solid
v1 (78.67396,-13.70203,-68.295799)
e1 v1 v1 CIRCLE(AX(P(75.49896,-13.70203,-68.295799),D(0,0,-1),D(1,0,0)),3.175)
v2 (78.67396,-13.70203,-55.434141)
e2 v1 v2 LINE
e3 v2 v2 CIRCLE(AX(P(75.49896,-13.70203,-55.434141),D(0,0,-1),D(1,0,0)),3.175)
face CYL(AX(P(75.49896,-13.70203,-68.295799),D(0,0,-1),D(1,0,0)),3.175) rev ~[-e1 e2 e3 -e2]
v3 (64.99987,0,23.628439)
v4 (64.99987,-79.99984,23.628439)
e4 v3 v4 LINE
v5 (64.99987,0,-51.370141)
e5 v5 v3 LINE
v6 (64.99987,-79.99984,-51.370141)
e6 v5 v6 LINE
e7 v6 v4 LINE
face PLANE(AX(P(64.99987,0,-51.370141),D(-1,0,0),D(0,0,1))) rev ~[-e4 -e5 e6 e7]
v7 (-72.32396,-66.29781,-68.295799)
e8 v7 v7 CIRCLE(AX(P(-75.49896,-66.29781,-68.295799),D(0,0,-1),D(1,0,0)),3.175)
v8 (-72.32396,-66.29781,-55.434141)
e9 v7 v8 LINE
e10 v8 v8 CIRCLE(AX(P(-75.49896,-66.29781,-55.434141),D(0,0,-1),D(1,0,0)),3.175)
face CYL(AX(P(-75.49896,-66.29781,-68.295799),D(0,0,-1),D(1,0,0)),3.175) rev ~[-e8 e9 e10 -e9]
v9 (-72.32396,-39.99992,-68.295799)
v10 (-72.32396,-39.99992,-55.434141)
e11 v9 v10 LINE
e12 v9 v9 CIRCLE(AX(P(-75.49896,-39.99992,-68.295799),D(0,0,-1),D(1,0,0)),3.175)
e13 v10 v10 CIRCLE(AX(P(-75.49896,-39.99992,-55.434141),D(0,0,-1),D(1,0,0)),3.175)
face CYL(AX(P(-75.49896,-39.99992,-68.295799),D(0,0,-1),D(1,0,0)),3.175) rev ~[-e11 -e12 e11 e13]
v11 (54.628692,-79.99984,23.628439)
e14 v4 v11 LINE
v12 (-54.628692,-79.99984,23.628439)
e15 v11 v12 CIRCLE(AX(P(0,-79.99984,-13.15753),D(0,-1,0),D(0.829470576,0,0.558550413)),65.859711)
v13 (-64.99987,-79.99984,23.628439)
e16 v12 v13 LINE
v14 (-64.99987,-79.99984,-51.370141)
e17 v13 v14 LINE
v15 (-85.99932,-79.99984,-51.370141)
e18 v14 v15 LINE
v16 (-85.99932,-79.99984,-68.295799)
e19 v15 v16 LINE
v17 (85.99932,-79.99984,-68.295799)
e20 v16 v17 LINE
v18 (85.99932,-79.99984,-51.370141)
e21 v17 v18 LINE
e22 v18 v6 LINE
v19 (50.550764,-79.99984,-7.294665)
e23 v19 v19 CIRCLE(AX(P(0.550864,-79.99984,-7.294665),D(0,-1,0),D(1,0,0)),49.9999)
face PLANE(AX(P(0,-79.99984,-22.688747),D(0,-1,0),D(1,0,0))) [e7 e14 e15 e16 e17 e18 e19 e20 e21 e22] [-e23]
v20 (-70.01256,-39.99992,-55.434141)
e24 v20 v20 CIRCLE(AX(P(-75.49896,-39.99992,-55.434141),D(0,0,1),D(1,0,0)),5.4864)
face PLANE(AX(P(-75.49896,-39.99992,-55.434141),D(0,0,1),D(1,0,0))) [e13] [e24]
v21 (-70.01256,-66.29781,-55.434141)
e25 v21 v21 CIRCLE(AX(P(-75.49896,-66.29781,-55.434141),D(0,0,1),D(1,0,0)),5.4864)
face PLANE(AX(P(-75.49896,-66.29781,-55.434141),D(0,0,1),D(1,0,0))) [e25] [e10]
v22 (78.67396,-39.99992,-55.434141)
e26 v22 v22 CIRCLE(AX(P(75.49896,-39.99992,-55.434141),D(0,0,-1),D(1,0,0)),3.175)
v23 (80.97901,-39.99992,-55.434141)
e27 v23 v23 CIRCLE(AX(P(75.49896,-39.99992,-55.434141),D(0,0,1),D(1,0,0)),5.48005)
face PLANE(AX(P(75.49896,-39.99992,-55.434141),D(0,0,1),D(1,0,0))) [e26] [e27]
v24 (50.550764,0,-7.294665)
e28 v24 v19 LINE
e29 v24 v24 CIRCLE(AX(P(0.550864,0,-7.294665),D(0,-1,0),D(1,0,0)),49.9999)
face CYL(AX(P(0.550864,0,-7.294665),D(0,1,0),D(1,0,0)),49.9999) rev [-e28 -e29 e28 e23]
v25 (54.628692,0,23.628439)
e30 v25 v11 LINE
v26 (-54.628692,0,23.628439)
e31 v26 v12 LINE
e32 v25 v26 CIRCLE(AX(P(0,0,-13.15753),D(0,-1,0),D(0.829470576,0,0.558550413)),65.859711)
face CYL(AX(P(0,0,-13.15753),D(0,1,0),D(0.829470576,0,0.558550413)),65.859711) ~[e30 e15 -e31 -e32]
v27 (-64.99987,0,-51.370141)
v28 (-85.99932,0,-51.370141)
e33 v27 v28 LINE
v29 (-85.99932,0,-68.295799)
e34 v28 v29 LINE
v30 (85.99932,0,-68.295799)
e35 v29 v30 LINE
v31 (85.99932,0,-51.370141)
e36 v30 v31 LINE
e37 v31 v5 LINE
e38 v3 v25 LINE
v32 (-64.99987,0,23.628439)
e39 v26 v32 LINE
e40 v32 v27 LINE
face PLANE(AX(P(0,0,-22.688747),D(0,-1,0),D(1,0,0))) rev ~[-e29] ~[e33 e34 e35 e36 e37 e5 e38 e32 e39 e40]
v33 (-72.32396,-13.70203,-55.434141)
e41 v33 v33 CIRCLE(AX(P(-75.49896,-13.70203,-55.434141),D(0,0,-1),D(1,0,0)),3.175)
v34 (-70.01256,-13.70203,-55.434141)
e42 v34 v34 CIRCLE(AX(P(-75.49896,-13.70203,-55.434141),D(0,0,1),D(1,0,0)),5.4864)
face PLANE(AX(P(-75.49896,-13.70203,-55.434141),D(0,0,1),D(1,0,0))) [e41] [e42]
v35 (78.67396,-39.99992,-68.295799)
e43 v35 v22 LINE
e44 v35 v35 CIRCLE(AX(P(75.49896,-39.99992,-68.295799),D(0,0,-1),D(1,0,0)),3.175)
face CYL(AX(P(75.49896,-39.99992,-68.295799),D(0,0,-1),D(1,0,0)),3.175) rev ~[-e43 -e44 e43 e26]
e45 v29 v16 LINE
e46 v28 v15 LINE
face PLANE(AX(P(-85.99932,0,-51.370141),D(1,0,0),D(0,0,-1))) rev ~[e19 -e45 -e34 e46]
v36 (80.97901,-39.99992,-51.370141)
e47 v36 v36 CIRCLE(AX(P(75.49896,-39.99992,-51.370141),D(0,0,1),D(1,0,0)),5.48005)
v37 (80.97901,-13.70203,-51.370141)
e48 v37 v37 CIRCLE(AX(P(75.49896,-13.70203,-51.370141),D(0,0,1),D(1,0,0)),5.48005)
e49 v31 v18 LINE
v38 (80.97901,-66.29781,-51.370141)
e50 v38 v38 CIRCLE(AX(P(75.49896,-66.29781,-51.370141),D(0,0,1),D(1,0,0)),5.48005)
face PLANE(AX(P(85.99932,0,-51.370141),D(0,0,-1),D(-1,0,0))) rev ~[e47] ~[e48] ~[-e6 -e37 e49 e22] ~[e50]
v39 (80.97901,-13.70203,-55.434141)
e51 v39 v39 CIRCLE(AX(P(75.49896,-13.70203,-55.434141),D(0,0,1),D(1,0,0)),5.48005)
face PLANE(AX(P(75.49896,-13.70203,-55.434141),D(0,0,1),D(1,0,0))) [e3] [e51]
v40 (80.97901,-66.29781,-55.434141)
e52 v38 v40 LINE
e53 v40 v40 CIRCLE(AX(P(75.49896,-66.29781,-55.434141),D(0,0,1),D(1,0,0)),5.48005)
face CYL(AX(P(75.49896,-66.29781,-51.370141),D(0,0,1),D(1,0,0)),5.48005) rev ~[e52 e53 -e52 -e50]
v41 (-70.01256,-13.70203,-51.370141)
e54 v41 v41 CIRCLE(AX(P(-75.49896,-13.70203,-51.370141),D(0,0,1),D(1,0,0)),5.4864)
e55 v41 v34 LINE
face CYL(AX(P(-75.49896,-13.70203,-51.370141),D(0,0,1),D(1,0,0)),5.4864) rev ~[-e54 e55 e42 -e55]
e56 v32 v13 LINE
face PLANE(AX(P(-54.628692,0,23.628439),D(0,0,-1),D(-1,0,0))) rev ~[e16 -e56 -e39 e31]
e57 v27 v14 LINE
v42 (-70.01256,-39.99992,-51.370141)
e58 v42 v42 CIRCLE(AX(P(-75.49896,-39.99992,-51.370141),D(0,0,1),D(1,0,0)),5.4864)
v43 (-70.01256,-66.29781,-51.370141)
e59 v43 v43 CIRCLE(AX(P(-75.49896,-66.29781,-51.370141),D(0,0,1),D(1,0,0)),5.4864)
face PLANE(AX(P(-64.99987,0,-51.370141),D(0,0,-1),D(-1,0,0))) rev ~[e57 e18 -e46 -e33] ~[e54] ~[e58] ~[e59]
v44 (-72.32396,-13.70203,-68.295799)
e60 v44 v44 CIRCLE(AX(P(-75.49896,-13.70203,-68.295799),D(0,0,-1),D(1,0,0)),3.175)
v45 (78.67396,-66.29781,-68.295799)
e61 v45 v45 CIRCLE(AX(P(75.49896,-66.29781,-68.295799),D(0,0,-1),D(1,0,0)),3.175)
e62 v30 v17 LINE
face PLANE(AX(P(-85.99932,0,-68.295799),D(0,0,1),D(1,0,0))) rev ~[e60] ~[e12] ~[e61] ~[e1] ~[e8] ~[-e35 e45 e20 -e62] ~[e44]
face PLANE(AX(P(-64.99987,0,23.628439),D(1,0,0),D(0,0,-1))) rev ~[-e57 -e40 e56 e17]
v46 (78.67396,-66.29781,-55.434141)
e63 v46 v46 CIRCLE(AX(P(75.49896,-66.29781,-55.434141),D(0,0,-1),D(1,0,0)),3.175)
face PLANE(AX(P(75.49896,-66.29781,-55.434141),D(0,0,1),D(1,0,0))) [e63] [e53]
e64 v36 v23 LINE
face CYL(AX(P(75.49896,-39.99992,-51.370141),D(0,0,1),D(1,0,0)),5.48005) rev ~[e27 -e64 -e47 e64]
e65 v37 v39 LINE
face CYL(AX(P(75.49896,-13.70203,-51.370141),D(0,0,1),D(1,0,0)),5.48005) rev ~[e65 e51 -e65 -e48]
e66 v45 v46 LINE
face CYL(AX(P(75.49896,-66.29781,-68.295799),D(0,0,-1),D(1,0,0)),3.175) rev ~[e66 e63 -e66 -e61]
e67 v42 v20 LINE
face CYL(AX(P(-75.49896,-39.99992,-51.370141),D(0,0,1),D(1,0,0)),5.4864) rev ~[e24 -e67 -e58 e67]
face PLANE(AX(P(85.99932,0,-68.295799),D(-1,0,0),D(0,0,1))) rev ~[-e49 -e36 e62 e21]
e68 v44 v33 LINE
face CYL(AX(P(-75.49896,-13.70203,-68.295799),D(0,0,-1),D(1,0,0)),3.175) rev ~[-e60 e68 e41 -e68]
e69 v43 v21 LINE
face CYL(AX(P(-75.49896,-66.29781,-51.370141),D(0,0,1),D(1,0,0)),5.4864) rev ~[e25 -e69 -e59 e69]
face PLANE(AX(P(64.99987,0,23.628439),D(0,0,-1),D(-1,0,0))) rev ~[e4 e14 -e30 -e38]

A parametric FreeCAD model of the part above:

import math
import FreeCAD as App
import Part
import Sketcher

V = App.Vector
Q = App.Units.Quantity

doc = App.newDocument("Part")
params = doc.addObject("Spreadsheet::Sheet", "Params")
for row, (alias, value) in enumerate([
    ("sketch1_diameter", "3.937 in"),
    ("pad1_length", "3.1496 in"),
    ("sketch2_diameter", "0.25 in"),
    ("sketch3_diameter", "0.25 in"),
    ("pocket3_length", "0.16 in"),
    ("sketch5_diameter", "0.432 in"),
    ("pocket4_length", "0.16 in"),
], start=1):
    params.set(f"A{row}", alias)
    params.set(f"B{row}", "=" + value)
    params.setAlias(f"B{row}", alias)

body = doc.addObject("PartDesign::Body", "Body")

sketch1 = body.newObject("Sketcher::SketchObject", "Sketch")
sketch1.AttachmentSupport = (doc.getObject("XZ_Plane"), [""])
sketch1.MapMode = "FlatFace"
sketch1.addGeometry([
    Part.LineSegment(V(-85.99932, -68.295799, 0), V(85.99932, -68.295799, 0)),
    Part.LineSegment(V(85.99932, -68.295799, 0), V(85.99932, -51.370141, 0)),
    Part.LineSegment(V(85.99932, -51.370141, 0), V(64.99987, -51.370141, 0)),
    Part.LineSegment(V(64.99987, -51.370141, 0), V(64.99987, 23.628439, 0)),
    Part.LineSegment(V(64.99987, 23.628439, 0), V(54.628692, 23.628439, 0)),
    Part.ArcOfCircle(Part.Circle(V(0, -13.15753, 0), V(0, 0, 1), 65.859711), math.radians(33.955608), math.radians(146.044392)),
    Part.LineSegment(V(-54.628692, 23.628439, 0), V(-64.99987, 23.628439, 0)),
    Part.LineSegment(V(-64.99987, 23.628439, 0), V(-64.99987, -51.370141, 0)),
    Part.LineSegment(V(-64.99987, -51.370141, 0), V(-85.99932, -51.370141, 0)),
    Part.LineSegment(V(-85.99932, -51.370141, 0), V(-85.99932, -68.295799, 0)),
    Part.Circle(V(0.550864, -7.294665, 0), V(0, 0, 1), 49.9999),
], False)
sketch1.addConstraint([
    Sketcher.Constraint("Coincident", 0, 2, 1, 1),
    Sketcher.Constraint("Coincident", 1, 2, 2, 1),
    Sketcher.Constraint("Coincident", 2, 2, 3, 1),
    Sketcher.Constraint("Coincident", 3, 2, 4, 1),
    Sketcher.Constraint("Coincident", 4, 2, 5, 1),
    Sketcher.Constraint("Coincident", 5, 2, 6, 1),
    Sketcher.Constraint("Coincident", 6, 2, 7, 1),
    Sketcher.Constraint("Coincident", 7, 2, 8, 1),
    Sketcher.Constraint("Coincident", 8, 2, 9, 1),
    Sketcher.Constraint("Coincident", 9, 2, 0, 1),
    Sketcher.Constraint("Horizontal", 0),
    Sketcher.Constraint("Vertical", 1),
    Sketcher.Constraint("Horizontal", 2),
    Sketcher.Constraint("Vertical", 3),
    Sketcher.Constraint("Horizontal", 4),
    Sketcher.Constraint("Horizontal", 6),
    Sketcher.Constraint("Vertical", 7),
    Sketcher.Constraint("Horizontal", 8),
    Sketcher.Constraint("Vertical", 9),
    Sketcher.Constraint("Symmetric", 4, 2, 5, 2, -2),
    Sketcher.Constraint("Symmetric", 2, 2, 7, 2, -2),
    Sketcher.Constraint("Equal", 2, 8),
    Sketcher.Constraint("Diameter", 10, Q("3.937 in")),
    Sketcher.Constraint("DistanceX", 0, 1, 0, 2, Q("6.7716 in")),
    Sketcher.Constraint("DistanceY", 3, 1, 3, 2, Q("2.9527 in")),
    Sketcher.Constraint("Radius", 5, Q("65.859711 mm")),
    Sketcher.Constraint("DistanceX", 6, 2, 3, 2, Q("5.1181 in")),
    Sketcher.Constraint("DistanceY", 1, 1, 1, 2, Q("16.925658 mm")),
    Sketcher.Constraint("DistanceY", 0, 2, -1, 1, Q("68.295799 mm")),
    Sketcher.Constraint("DistanceX", 4, 2, 4, 1, Q("10.371178 mm")),
    Sketcher.Constraint("DistanceX", 10, 3, 4, 2, Q("54.077828 mm")),
    Sketcher.Constraint("DistanceY", 10, 3, -1, 1, Q("7.294665 mm")),
])
sketch1.setExpression("Constraints[22]", "Params.sketch1_diameter")
pad1 = body.newObject("PartDesign::Pad", "Pad")
pad1.Profile = sketch1
pad1.setExpression("Length", "Params.pad1_length")

sketch2 = body.newObject("Sketcher::SketchObject", "Sketch001")
sketch2.AttachmentSupport = (doc.getObject("XY_Plane"), [""])
sketch2.MapMode = "FlatFace"
sketch2.AttachmentOffset = App.Placement(V(0, 0, -68.295799), App.Rotation())
sketch2.addGeometry([
    Part.Circle(V(-75.49896, -66.29781, 0), V(0, 0, 1), 3.175),
    Part.Circle(V(-75.49896, -39.99992, 0), V(0, 0, 1), 3.175),
    Part.Circle(V(-75.49896, -13.70203, 0), V(0, 0, 1), 3.175),
    Part.Circle(V(75.49896, -66.29781, 0), V(0, 0, 1), 3.175),
    Part.Circle(V(75.49896, -39.99992, 0), V(0, 0, 1), 3.175),
    Part.Circle(V(75.49896, -13.70203, 0), V(0, 0, 1), 3.175),
], False)
sketch2.addConstraint([
    Sketcher.Constraint("Equal", 0, 1),
    Sketcher.Constraint("Equal", 1, 2),
    Sketcher.Constraint("Equal", 2, 3),
    Sketcher.Constraint("Equal", 3, 4),
    Sketcher.Constraint("Equal", 4, 5),
    Sketcher.Constraint("Symmetric", 0, 3, 3, 3, -2),
    Sketcher.Constraint("Symmetric", 1, 3, 4, 3, -2),
    Sketcher.Constraint("Symmetric", 2, 3, 5, 3, -2),
    Sketcher.Constraint("Vertical", 0, 3, 1, 3),
    Sketcher.Constraint("Vertical", 1, 3, 2, 3),
    Sketcher.Constraint("Diameter", 0, Q("0.25 in")),
    Sketcher.Constraint("DistanceX", 0, 3, -1, 1, Q("2.9724 in")),
    Sketcher.Constraint("DistanceY", 1, 3, -1, 1, Q("1.5748 in")),
    Sketcher.Constraint("DistanceY", 0, 3, 2, 3, Q("2.0707 in")),
    Sketcher.Constraint("DistanceY", 0, 3, -1, 1, Q("66.29781 mm")),
])
sketch2.setExpression("Constraints[10]", "Params.sketch2_diameter")
pocket1 = body.newObject("PartDesign::Pocket", "Pocket")
pocket1.Profile = sketch2
pocket1.Type = "ThroughAll"
pocket1.Reversed = True

sketch3 = body.newObject("Sketcher::SketchObject", "Sketch002")
sketch3.AttachmentSupport = (doc.getObject("XY_Plane"), [""])
sketch3.MapMode = "FlatFace"
sketch3.AttachmentOffset = App.Placement(V(0, 0, -68.295799), App.Rotation())
sketch3.addGeometry([
    Part.Circle(V(-75.49896, -66.29781, 0), V(0, 0, 1), 3.175),
    Part.Circle(V(-75.49896, -39.99992, 0), V(0, 0, 1), 3.175),
    Part.Circle(V(-75.49896, -13.70203, 0), V(0, 0, 1), 3.175),
    Part.Circle(V(75.49896, -66.29781, 0), V(0, 0, 1), 3.175),
    Part.Circle(V(75.49896, -39.99992, 0), V(0, 0, 1), 3.175),
    Part.Circle(V(75.49896, -13.70203, 0), V(0, 0, 1), 3.175),
], False)
sketch3.addConstraint([
    Sketcher.Constraint("Equal", 0, 1),
    Sketcher.Constraint("Equal", 1, 2),
    Sketcher.Constraint("Equal", 2, 3),
    Sketcher.Constraint("Equal", 3, 4),
    Sketcher.Constraint("Equal", 4, 5),
    Sketcher.Constraint("Symmetric", 0, 3, 3, 3, -2),
    Sketcher.Constraint("Symmetric", 1, 3, 4, 3, -2),
    Sketcher.Constraint("Symmetric", 2, 3, 5, 3, -2),
    Sketcher.Constraint("Vertical", 0, 3, 1, 3),
    Sketcher.Constraint("Vertical", 1, 3, 2, 3),
    Sketcher.Constraint("Diameter", 0, Q("0.25 in")),
    Sketcher.Constraint("DistanceX", 0, 3, -1, 1, Q("2.9724 in")),
    Sketcher.Constraint("DistanceY", 1, 3, -1, 1, Q("1.5748 in")),
    Sketcher.Constraint("DistanceY", 0, 3, 2, 3, Q("2.0707 in")),
    Sketcher.Constraint("DistanceY", 0, 3, -1, 1, Q("66.29781 mm")),
])
sketch3.setExpression("Constraints[10]", "Params.sketch3_diameter")
pocket2 = body.newObject("PartDesign::Pocket", "Pocket001")
pocket2.Profile = sketch3
pocket2.Type = "ThroughAll"
pocket2.Reversed = True

sketch4 = body.newObject("Sketcher::SketchObject", "Sketch003")
sketch4.AttachmentSupport = (doc.getObject("XY_Plane"), [""])
sketch4.MapMode = "FlatFace"
sketch4.AttachmentOffset = App.Placement(V(0, 0, -51.370141), App.Rotation())
sketch4.addGeometry([
    Part.Circle(V(75.49896, -13.70203, 0), V(0, 0, 1), 5.48005),
    Part.Circle(V(75.49896, -39.99992, 0), V(0, 0, 1), 5.48005),
    Part.Circle(V(75.49896, -66.29781, 0), V(0, 0, 1), 5.48005),
], False)
sketch4.addConstraint([
    Sketcher.Constraint("Equal", 0, 1),
    Sketcher.Constraint("Equal", 1, 2),
    Sketcher.Constraint("Vertical", 0, 3, 1, 3),
    Sketcher.Constraint("Vertical", 1, 3, 2, 3),
    Sketcher.Constraint("Diameter", 0, Q("0.4315 in")),
    Sketcher.Constraint("DistanceX", -1, 1, 0, 3, Q("2.9724 in")),
    Sketcher.Constraint("DistanceY", 1, 3, -1, 1, Q("1.5748 in")),
    Sketcher.Constraint("DistanceY", 2, 3, 0, 3, Q("2.0707 in")),
    Sketcher.Constraint("DistanceY", 0, 3, -1, 1, Q("13.70203 mm")),
])
pocket3 = body.newObject("PartDesign::Pocket", "Pocket002")
pocket3.Profile = sketch4
pocket3.setExpression("Length", "Params.pocket3_length")

sketch5 = body.newObject("Sketcher::SketchObject", "Sketch004")
sketch5.AttachmentSupport = (doc.getObject("XY_Plane"), [""])
sketch5.MapMode = "FlatFace"
sketch5.AttachmentOffset = App.Placement(V(0, 0, -51.370141), App.Rotation())
sketch5.addGeometry([
    Part.Circle(V(-75.49896, -13.70203, 0), V(0, 0, 1), 5.4864),
    Part.Circle(V(-75.49896, -39.99992, 0), V(0, 0, 1), 5.4864),
    Part.Circle(V(-75.49896, -66.29781, 0), V(0, 0, 1), 5.4864),
], False)
sketch5.addConstraint([
    Sketcher.Constraint("Equal", 0, 1),
    Sketcher.Constraint("Equal", 1, 2),
    Sketcher.Constraint("Vertical", 0, 3, 1, 3),
    Sketcher.Constraint("Vertical", 1, 3, 2, 3),
    Sketcher.Constraint("Diameter", 0, Q("0.432 in")),
    Sketcher.Constraint("DistanceX", 0, 3, -1, 1, Q("2.9724 in")),
    Sketcher.Constraint("DistanceY", 1, 3, -1, 1, Q("1.5748 in")),
    Sketcher.Constraint("DistanceY", 2, 3, 0, 3, Q("2.0707 in")),
    Sketcher.Constraint("DistanceY", 0, 3, -1, 1, Q("13.70203 mm")),
])
sketch5.setExpression("Constraints[4]", "Params.sketch5_diameter")
pocket4 = body.newObject("PartDesign::Pocket", "Pocket003")
pocket4.Profile = sketch5
pocket4.setExpression("Length", "Params.pocket4_length")

doc.recompute()
